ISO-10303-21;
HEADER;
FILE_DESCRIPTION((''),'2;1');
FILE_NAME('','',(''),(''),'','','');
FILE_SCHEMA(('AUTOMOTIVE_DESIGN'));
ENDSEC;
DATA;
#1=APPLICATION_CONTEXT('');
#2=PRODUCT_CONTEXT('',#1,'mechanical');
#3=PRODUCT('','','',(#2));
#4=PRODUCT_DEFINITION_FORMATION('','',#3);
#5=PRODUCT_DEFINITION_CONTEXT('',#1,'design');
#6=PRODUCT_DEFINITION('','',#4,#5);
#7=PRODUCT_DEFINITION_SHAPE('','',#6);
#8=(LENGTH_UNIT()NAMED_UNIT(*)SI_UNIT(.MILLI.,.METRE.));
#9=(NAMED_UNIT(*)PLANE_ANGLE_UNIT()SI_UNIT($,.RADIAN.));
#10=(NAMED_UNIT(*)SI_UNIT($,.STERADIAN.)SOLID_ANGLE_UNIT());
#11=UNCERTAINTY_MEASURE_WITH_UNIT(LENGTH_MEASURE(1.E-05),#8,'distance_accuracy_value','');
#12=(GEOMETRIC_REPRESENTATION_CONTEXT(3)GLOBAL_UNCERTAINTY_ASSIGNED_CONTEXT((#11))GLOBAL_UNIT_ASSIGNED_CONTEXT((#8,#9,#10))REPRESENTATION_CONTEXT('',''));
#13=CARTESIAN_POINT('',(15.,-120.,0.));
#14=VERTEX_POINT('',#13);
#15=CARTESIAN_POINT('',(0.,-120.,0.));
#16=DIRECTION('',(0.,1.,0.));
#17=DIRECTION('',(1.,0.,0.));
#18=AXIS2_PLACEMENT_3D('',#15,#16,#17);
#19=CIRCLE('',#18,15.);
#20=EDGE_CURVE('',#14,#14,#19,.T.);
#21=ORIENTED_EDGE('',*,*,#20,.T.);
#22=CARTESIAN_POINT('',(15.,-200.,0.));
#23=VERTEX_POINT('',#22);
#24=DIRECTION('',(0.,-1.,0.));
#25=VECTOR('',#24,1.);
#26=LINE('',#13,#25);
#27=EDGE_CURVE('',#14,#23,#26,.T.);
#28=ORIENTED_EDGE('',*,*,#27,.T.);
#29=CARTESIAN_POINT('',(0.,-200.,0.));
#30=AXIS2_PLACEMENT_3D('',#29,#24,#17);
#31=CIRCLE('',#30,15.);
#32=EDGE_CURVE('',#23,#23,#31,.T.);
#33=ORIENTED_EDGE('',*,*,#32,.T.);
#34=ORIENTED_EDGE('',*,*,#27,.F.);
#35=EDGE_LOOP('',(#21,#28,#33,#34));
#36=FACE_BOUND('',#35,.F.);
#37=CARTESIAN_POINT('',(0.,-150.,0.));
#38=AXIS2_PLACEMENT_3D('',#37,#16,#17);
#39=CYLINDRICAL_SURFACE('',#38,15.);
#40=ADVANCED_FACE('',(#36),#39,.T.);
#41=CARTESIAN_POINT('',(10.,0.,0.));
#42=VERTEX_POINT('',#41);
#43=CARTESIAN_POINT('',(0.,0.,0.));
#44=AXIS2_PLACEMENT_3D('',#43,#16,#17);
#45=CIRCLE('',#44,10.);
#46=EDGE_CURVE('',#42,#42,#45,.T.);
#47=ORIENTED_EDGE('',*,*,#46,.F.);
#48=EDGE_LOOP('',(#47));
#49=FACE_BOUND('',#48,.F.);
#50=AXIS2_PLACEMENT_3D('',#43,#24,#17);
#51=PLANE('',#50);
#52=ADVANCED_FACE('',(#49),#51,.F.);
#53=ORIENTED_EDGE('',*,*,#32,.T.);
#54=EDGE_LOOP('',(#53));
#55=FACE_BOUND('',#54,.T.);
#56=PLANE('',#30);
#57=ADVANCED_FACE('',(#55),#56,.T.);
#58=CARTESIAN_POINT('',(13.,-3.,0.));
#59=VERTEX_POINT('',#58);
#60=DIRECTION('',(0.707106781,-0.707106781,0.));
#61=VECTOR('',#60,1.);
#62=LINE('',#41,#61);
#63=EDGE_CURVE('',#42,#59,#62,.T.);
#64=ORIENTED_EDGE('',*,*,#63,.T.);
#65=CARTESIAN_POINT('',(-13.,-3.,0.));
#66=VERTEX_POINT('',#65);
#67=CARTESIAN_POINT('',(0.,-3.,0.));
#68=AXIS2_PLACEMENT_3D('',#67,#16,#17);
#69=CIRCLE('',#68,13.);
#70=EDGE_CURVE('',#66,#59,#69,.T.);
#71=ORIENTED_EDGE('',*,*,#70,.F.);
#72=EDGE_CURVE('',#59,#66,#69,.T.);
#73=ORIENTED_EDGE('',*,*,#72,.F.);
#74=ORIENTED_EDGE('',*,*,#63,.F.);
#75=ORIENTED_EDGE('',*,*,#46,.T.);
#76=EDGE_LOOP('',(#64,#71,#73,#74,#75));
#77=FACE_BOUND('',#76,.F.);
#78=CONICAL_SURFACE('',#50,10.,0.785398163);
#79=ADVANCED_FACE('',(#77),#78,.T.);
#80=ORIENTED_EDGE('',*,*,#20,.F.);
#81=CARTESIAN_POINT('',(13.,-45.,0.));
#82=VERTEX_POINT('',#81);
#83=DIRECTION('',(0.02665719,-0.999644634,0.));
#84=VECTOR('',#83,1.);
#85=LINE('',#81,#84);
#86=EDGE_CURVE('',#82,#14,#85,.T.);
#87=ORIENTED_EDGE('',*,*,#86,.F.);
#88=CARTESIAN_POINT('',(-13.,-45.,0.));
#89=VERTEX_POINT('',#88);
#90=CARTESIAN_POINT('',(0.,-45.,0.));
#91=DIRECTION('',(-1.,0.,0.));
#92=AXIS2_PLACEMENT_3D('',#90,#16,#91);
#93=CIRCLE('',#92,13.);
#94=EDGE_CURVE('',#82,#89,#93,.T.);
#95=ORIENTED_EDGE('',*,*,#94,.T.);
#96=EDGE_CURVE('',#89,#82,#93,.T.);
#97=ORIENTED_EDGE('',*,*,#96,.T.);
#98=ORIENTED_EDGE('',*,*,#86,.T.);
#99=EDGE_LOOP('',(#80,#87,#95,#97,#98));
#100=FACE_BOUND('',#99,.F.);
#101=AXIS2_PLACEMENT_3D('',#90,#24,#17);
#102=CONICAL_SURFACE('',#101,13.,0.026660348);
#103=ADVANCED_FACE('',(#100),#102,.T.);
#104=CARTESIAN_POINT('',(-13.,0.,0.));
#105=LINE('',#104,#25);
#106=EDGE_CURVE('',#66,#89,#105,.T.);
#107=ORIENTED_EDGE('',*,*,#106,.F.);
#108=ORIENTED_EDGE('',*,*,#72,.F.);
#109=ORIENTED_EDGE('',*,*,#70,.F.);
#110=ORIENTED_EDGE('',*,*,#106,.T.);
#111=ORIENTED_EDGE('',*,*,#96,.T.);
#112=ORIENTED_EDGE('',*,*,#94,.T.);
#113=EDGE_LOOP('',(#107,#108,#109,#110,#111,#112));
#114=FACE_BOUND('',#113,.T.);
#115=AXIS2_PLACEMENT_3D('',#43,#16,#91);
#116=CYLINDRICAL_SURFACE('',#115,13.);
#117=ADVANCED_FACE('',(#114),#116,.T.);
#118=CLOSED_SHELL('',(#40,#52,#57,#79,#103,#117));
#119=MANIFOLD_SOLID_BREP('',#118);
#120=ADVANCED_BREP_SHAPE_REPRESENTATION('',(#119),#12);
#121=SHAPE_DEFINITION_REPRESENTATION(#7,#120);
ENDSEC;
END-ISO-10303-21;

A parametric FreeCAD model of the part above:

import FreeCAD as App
import Part
import Sketcher

V = App.Vector

doc = App.newDocument("Part")
params = doc.addObject("Spreadsheet::Sheet", "Params")
for row, (alias, value) in enumerate([
    ("sketch1_diameter", "30 mm"),
    ("pad1_length", "150 mm"),
    ("sketch2_diameter", "30 mm"),
    ("sketch2_diameter2", "26 mm"),
    ("pocket1_length", "45 mm"),
    ("sketch3_width", "2 mm"),
    ("sketch3_width2", "3 mm"),
    ("sketch3_height", "75 mm"),
    ("groove_angle", "360 deg"),
    ("sketch4_diameter", "30 mm"),
    ("pad2_length", "50 mm"),
], start=1):
    params.set(f"A{row}", alias)
    params.set(f"B{row}", "=" + value)
    params.setAlias(f"B{row}", alias)

body = doc.addObject("PartDesign::Body", "Body")

sketch1 = doc.addObject("Sketcher::SketchObject", "Sketch")
body.addObject(sketch1)
sketch1.AttachmentSupport = (doc.XZ_Plane, [""])
sketch1.MapMode = "FlatFace"
sketch1.addGeometry(Part.Circle(V(0, 0, 0), V(0, 0, 1), 15), False)
sketch1.addConstraint([
    Sketcher.Constraint("Coincident", 0, 3, -1, 1),
    Sketcher.Constraint("Diameter", 0, 30.0),
])
sketch1.setExpression("Constraints[1]", "Params.sketch1_diameter")
pad1 = doc.addObject("PartDesign::Pad", "Pad")
body.addObject(pad1)
pad1.Profile = sketch1
pad1.setExpression("Length", "Params.pad1_length")

sketch2 = doc.addObject("Sketcher::SketchObject", "Sketch001")
body.addObject(sketch2)
sketch2.AttachmentSupport = (doc.XZ_Plane, [""])
sketch2.MapMode = "FlatFace"
sketch2.addGeometry([
    Part.Circle(V(0, 0, 0), V(0, 0, 1), 15),
    Part.Circle(V(0, 0, 0), V(0, 0, 1), 13),
], False)
sketch2.addConstraint([
    Sketcher.Constraint("Coincident", 0, 3, -1, 1),
    Sketcher.Constraint("Coincident", 1, 3, -1, 1),
    Sketcher.Constraint("Diameter", 0, 30.0),
    Sketcher.Constraint("Diameter", 1, 26.0),
])
sketch2.setExpression("Constraints[2]", "Params.sketch2_diameter")
sketch2.setExpression("Constraints[3]", "Params.sketch2_diameter2")
pocket1 = doc.addObject("PartDesign::Pocket", "Pocket")
body.addObject(pocket1)
pocket1.Profile = sketch2
pocket1.setExpression("Length", "Params.pocket1_length")
pocket1.Reversed = True

sketch3 = doc.addObject("Sketcher::SketchObject", "Sketch002")
body.addObject(sketch3)
sketch3.AttachmentSupport = (doc.XY_Plane, [""])
sketch3.MapMode = "FlatFace"
sketch3.addGeometry([
    Part.LineSegment(V(15, -45, 0), V(13, -45, 0)),
    Part.LineSegment(V(13, -45, 0), V(15, -120, 0)),
    Part.LineSegment(V(15, -120, 0), V(15, -45, 0)),
    Part.LineSegment(V(13, 0, 0), V(10, 0, 0)),
    Part.LineSegment(V(10, 0, 0), V(13, -3, 0)),
    Part.LineSegment(V(13, -3, 0), V(13, 0, 0)),
], False)
sketch3.addConstraint([
    Sketcher.Constraint("Coincident", 0, 2, 1, 1),
    Sketcher.Constraint("Coincident", 1, 2, 2, 1),
    Sketcher.Constraint("Coincident", 2, 2, 0, 1),
    Sketcher.Constraint("Coincident", 3, 2, 4, 1),
    Sketcher.Constraint("Coincident", 4, 2, 5, 1),
    Sketcher.Constraint("Coincident", 5, 2, 3, 1),
    Sketcher.Constraint("Horizontal", 0),
    Sketcher.Constraint("Vertical", 2),
    Sketcher.Constraint("Horizontal", 3),
    Sketcher.Constraint("Vertical", 5),
    Sketcher.Constraint("PointOnObject", 3, 2, -1),
    Sketcher.Constraint("Vertical", 0, 2, 4, 2),
    Sketcher.Constraint("Equal", 3, 5),
    Sketcher.Constraint("DistanceX", 0, 2, 0, 1, 2.0),
    Sketcher.Constraint("DistanceX", 3, 2, 3, 1, 3.0),
    Sketcher.Constraint("DistanceY", 2, 1, 2, 2, 75.0),
    Sketcher.Constraint("DistanceX", -1, 1, 0, 2, 13.0),
    Sketcher.Constraint("DistanceY", 0, 2, -1, 1, 45.0),
])
sketch3.setExpression("Constraints[13]", "Params.sketch3_width")
sketch3.setExpression("Constraints[14]", "Params.sketch3_width2")
sketch3.setExpression("Constraints[15]", "Params.sketch3_height")
groove = doc.addObject("PartDesign::Groove", "Groove")
body.addObject(groove)
groove.Profile = sketch3
groove.ReferenceAxis = (sketch3, ["V_Axis"])
groove.setExpression("Angle", "Params.groove_angle")

sketch4 = doc.addObject("Sketcher::SketchObject", "Sketch003")
body.addObject(sketch4)
sketch4.AttachmentSupport = (doc.XZ_Plane, [""])
sketch4.MapMode = "FlatFace"
sketch4.AttachmentOffset = App.Placement(V(0, 0, 150), App.Rotation())
sketch4.addGeometry(Part.Circle(V(0, 0, 0), V(0, 0, 1), 15), False)
sketch4.addConstraint([
    Sketcher.Constraint("Coincident", 0, 3, -1, 1),
    Sketcher.Constraint("Diameter", 0, 30.0),
])
sketch4.setExpression("Constraints[1]", "Params.sketch4_diameter")
pad2 = doc.addObject("PartDesign::Pad", "Pad001")
body.addObject(pad2)
pad2.Profile = sketch4
pad2.setExpression("Length", "Params.pad2_length")

doc.recompute()
